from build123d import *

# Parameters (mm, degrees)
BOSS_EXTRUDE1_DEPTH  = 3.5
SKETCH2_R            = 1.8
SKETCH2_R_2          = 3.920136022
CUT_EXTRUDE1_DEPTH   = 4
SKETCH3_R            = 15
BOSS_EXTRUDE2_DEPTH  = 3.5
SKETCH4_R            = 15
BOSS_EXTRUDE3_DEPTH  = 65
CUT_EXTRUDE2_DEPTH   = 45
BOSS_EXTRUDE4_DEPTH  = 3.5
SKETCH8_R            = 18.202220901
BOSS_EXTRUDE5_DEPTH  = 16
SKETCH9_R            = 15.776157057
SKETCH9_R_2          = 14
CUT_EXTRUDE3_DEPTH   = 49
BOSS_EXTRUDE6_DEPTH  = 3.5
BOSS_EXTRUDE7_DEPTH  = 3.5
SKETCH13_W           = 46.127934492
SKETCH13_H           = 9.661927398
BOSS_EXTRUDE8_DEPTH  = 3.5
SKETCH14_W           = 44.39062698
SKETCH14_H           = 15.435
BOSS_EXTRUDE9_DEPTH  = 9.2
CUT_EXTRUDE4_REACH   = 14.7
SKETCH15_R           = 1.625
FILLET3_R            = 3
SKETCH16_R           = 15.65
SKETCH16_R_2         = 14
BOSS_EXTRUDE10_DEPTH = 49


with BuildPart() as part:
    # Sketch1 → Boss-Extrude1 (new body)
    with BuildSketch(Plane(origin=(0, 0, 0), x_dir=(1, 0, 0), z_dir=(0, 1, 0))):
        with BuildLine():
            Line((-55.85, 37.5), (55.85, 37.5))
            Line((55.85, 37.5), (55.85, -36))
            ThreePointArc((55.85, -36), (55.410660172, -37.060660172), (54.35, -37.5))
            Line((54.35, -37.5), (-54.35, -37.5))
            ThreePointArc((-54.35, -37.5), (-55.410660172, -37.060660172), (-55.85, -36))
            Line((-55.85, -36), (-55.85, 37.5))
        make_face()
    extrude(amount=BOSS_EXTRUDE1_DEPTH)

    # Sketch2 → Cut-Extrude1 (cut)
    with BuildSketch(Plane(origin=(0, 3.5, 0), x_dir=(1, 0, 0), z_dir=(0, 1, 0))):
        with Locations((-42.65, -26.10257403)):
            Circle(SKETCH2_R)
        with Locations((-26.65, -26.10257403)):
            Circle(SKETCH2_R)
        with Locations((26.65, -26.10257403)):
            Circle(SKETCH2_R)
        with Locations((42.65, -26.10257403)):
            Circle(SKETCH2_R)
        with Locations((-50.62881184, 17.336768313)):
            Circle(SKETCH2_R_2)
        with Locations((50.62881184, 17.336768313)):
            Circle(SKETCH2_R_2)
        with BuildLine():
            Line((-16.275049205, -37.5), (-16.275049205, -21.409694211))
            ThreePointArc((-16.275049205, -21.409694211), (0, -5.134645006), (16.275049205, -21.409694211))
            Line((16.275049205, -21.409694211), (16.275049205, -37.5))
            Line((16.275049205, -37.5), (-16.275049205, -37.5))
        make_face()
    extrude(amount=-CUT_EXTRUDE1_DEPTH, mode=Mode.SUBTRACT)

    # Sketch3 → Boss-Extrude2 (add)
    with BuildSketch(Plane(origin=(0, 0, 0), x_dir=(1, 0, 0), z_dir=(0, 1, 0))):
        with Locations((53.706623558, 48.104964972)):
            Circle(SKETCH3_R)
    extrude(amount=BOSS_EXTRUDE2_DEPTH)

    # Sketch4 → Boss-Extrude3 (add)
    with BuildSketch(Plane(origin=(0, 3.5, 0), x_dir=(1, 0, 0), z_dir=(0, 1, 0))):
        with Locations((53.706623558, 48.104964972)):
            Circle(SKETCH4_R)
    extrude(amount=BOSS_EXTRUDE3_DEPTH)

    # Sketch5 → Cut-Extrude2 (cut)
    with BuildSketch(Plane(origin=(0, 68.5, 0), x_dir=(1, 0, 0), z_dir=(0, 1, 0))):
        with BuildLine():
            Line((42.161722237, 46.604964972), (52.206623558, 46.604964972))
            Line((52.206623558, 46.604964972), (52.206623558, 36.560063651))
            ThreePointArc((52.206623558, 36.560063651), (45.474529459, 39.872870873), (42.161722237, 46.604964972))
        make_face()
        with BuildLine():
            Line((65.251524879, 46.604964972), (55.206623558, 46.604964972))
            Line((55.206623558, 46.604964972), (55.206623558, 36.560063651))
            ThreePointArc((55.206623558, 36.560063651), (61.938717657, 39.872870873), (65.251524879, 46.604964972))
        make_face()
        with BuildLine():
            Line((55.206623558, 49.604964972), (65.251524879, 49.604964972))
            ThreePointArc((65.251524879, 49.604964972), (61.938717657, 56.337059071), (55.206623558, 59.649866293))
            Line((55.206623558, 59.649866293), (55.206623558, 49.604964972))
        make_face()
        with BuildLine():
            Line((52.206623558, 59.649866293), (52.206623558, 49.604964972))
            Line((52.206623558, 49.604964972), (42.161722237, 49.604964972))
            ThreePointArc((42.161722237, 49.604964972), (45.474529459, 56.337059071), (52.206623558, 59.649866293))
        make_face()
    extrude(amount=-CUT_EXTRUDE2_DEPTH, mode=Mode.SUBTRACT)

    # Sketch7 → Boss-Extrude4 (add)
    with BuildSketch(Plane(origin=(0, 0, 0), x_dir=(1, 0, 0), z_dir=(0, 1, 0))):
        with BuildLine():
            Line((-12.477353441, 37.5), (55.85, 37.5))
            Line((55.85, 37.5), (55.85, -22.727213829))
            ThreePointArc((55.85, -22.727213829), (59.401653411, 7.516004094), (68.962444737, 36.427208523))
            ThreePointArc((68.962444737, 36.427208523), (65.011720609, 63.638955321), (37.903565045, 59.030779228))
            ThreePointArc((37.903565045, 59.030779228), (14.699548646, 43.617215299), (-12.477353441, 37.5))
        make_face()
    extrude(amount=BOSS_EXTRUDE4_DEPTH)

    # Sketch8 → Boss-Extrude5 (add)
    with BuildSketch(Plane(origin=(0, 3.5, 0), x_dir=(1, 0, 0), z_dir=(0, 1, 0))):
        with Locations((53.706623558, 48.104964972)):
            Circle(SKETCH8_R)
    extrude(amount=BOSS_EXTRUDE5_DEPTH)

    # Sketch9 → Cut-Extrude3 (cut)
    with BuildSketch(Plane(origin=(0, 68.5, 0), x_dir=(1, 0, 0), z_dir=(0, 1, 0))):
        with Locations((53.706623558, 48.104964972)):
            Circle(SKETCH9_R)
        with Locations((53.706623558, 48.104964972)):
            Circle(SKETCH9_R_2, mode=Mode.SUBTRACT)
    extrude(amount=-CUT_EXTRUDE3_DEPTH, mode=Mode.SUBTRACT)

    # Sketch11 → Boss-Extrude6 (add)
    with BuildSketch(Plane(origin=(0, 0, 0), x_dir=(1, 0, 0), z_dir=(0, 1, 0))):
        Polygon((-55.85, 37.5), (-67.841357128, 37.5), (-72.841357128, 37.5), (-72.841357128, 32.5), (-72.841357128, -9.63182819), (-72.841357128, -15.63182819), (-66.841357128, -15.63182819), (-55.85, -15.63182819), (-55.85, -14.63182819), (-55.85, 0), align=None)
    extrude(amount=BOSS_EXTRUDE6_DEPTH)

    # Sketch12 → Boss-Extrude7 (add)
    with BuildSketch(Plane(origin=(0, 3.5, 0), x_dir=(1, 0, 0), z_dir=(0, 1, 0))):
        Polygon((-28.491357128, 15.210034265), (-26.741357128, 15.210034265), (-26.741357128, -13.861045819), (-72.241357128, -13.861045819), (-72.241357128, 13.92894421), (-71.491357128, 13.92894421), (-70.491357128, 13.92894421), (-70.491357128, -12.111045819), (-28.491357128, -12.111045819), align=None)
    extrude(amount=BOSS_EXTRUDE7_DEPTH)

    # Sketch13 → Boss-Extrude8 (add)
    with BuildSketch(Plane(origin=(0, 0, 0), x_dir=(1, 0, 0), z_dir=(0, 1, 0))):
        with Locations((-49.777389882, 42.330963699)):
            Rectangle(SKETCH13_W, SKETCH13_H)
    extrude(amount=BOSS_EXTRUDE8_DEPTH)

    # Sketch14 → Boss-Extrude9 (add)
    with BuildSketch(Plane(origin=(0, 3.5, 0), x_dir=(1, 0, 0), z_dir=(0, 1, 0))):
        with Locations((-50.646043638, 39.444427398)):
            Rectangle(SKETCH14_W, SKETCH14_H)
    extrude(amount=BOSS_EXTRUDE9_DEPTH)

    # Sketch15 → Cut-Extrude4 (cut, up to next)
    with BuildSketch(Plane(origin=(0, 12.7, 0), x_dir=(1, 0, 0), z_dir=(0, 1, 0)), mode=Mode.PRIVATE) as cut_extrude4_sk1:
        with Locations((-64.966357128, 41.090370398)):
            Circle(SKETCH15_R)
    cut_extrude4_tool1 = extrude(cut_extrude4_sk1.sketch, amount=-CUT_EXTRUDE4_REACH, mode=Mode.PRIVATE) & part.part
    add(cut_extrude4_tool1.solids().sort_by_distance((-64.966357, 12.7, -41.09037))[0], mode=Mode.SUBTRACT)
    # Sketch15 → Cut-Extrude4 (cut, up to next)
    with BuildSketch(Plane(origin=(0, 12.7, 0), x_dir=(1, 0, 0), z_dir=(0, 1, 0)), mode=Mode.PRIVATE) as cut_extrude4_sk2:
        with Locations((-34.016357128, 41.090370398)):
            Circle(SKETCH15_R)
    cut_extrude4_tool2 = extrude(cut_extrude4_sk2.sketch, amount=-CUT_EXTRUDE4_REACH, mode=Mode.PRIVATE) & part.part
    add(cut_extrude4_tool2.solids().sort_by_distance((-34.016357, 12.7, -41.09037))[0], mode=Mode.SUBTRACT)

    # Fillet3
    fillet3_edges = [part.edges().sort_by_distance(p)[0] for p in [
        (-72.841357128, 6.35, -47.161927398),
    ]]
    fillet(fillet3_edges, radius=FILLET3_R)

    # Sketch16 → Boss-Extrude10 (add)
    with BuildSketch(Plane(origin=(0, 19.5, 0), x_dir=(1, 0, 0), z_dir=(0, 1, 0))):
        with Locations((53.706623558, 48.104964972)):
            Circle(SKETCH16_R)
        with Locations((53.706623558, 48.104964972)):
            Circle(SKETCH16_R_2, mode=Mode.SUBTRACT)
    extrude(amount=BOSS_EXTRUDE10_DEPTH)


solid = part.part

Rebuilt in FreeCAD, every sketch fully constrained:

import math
import FreeCAD as App
import Part
import Sketcher

V = App.Vector


def edges_at(feature, points):
    """Names of the edges that pass closest to the given points."""
    edges = feature.Shape.Edges
    near = lambda p: min(range(len(edges)), key=lambda i: edges[i].distToShape(Part.Vertex(*p))[0])
    return sorted({f"Edge{near(p) + 1}" for p in points})

doc = App.newDocument("Part")
body = doc.addObject("PartDesign::Body", "Body")

# Sketch on XZ plane
sketch1 = doc.addObject("Sketcher::SketchObject", "Sketch")
body.addObject(sketch1)
sketch1.AttachmentSupport = (doc.XZ_Plane, [""])
sketch1.MapMode = "FlatFace"
sketch1.addGeometry([
    Part.LineSegment(V(55.9, -37.5, 0), V(-55.9, -37.5, 0)),  # 0
    Part.LineSegment(V(-55.9, -37.5, 0), V(-55.9, 36, 0)),  # 1
    Part.ArcOfCircle(Part.Circle(V(-54.4, 36, 0), V(0, 0, 1), 1.5), math.radians(90), math.radians(180)),  # 2
    Part.LineSegment(V(-54.4, 37.5, 0), V(54.4, 37.5, 0)),  # 3
    Part.ArcOfCircle(Part.Circle(V(54.4, 36, 0), V(0, 0, 1), 1.5), math.radians(0), math.radians(90)),  # 4
    Part.LineSegment(V(55.9, 36, 0), V(55.9, -37.5, 0)),  # 5
], False)
sketch1.addConstraint([
    Sketcher.Constraint("Coincident", 0, 2, 1, 1),
    Sketcher.Constraint("Tangent", 1, 2, 2, 2),
    Sketcher.Constraint("Tangent", 2, 1, 3, 1),
    Sketcher.Constraint("Tangent", 3, 2, 4, 2),
    Sketcher.Constraint("Tangent", 4, 1, 5, 1),
    Sketcher.Constraint("Coincident", 5, 2, 0, 1),
    Sketcher.Constraint("Horizontal", 0),
    Sketcher.Constraint("Vertical", 1),
    Sketcher.Constraint("Horizontal", 3),
    Sketcher.Constraint("Vertical", 5),
    Sketcher.Constraint("Equal", 2, 4),
    Sketcher.Constraint("Radius", 2, 1.5),
    Sketcher.Constraint("DistanceX", 0, 2, 0, 1, 111.7),
    Sketcher.Constraint("DistanceY", 1, 1, 1, 2, 73.5),
    Sketcher.Constraint("DistanceY", -1, 1, 2, 3, 36.0),
    Sketcher.Constraint("DistanceX", 2, 3, -1, 1, 54.35),
])
pad1 = doc.addObject("PartDesign::Pad", "Pad")
body.addObject(pad1)
pad1.Profile = sketch1
pad1.Length = 3.5
pad1.Reversed = True

# Sketch on XZ plane
sketch2 = doc.addObject("Sketcher::SketchObject", "Sketch001")
body.addObject(sketch2)
sketch2.AttachmentSupport = (doc.XZ_Plane, [""])
sketch2.MapMode = "FlatFace"
sketch2.AttachmentOffset = App.Placement(V(0, 0, -3.5), App.Rotation())
sketch2.addGeometry([
    Part.Circle(V(-42.6, 26.1, 0), V(0, 0, 1), 1.8),  # 0
    Part.Circle(V(-26.6, 26.1, 0), V(0, 0, 1), 1.8),  # 1
    Part.Circle(V(26.6, 26.1, 0), V(0, 0, 1), 1.8),  # 2
    Part.Circle(V(42.6, 26.1, 0), V(0, 0, 1), 1.8),  # 3
    Part.Circle(V(-50.6, -17.3, 0), V(0, 0, 1), 3.9),  # 4
    Part.Circle(V(50.6, -17.3, 0), V(0, 0, 1), 3.9),  # 5
    Part.LineSegment(V(-16.3, 21.4, 0), V(-16.3, 37.5, 0)),  # 6
    Part.LineSegment(V(-16.3, 37.5, 0), V(16.3, 37.5, 0)),  # 7
    Part.LineSegment(V(16.3, 37.5, 0), V(16.3, 21.4, 0)),  # 8
    Part.ArcOfCircle(Part.Circle(V(0, 21.4, 0), V(0, 0, 1), 16.3), math.radians(180), math.radians(360)),  # 9
], False)
sketch2.addConstraint([
    Sketcher.Constraint("Coincident", 6, 2, 7, 1),
    Sketcher.Constraint("Coincident", 7, 2, 8, 1),
    Sketcher.Constraint("Tangent", 8, 2, 9, 2),
    Sketcher.Constraint("Tangent", 9, 1, 6, 1),
    Sketcher.Constraint("Vertical", 6),
    Sketcher.Constraint("Horizontal", 7),
    Sketcher.Constraint("Vertical", 8),
    Sketcher.Constraint("Equal", 0, 1),
    Sketcher.Constraint("Equal", 1, 2),
    Sketcher.Constraint("Equal", 2, 3),
    Sketcher.Constraint("Equal", 4, 5),
    Sketcher.Constraint("Symmetric", 1, 3, 2, 3, -2),
    Sketcher.Constraint("Symmetric", 0, 3, 3, 3, -2),
    Sketcher.Constraint("Symmetric", 4, 3, 5, 3, -2),
    Sketcher.Constraint("PointOnObject", 9, 3, -2),
    Sketcher.Constraint("Horizontal", 0, 3, 1, 3),
    Sketcher.Constraint("Diameter", 0, 3.6),
    Sketcher.Constraint("DistanceX", 0, 3, 1, 3, 16.0),
    Sketcher.Constraint("DistanceY", -1, 1, 6, 2, 37.5),
    Sketcher.Constraint("DistanceX", 1, 3, 2, 3, 53.3),
    Sketcher.Constraint("Radius", 9, 16.275049),
    Sketcher.Constraint("Diameter", 4, 7.840272),
    Sketcher.Constraint("DistanceY", 6, 1, 6, 2, 16.090306),
    Sketcher.Constraint("DistanceX", 4, 3, -1, 1, 50.628812),
    Sketcher.Constraint("DistanceY", 4, 3, -1, 1, 17.336768),
    Sketcher.Constraint("DistanceY", 9, 3, 1, 3, 4.69288),
])
pocket1 = doc.addObject("PartDesign::Pocket", "Pocket")
body.addObject(pocket1)
pocket1.Profile = sketch2
pocket1.Length = 4
pocket1.Reversed = True

# Sketch on XZ plane
sketch3 = doc.addObject("Sketcher::SketchObject", "Sketch002")
body.addObject(sketch3)
sketch3.AttachmentSupport = (doc.XZ_Plane, [""])
sketch3.MapMode = "FlatFace"
sketch3.addGeometry(Part.Circle(V(54, -48, 0), V(0, 0, 1), 15), False)
sketch3.addConstraint([
    Sketcher.Constraint("Diameter", 0, 30.0),
    Sketcher.Constraint("DistanceX", -1, 1, 0, 3, 53.706624),
    Sketcher.Constraint("DistanceY", 0, 3, -1, 1, 48.104965),
])
pad2 = doc.addObject("PartDesign::Pad", "Pad001")
body.addObject(pad2)
pad2.Profile = sketch3
pad2.Length = 3.5
pad2.Reversed = True

# Sketch on XZ plane
sketch4 = doc.addObject("Sketcher::SketchObject", "Sketch003")
body.addObject(sketch4)
sketch4.AttachmentSupport = (doc.XZ_Plane, [""])
sketch4.MapMode = "FlatFace"
sketch4.AttachmentOffset = App.Placement(V(0, 0, -3.5), App.Rotation())
sketch4.addGeometry(Part.Circle(V(54, -48, 0), V(0, 0, 1), 15), False)
sketch4.addConstraint([
    Sketcher.Constraint("Diameter", 0, 30.0),
    Sketcher.Constraint("DistanceX", -1, 1, 0, 3, 53.706624),
    Sketcher.Constraint("DistanceY", 0, 3, -1, 1, 48.104965),
])
pad3 = doc.addObject("PartDesign::Pad", "Pad002")
body.addObject(pad3)
pad3.Profile = sketch4
pad3.Length = 65
pad3.Reversed = True

# Sketch on XZ plane
sketch5 = doc.addObject("Sketcher::SketchObject", "Sketch004")
body.addObject(sketch5)
sketch5.AttachmentSupport = (doc.XZ_Plane, [""])
sketch5.MapMode = "FlatFace"
sketch5.AttachmentOffset = App.Placement(V(0, 0, -68.5), App.Rotation())
sketch5.addGeometry([
    Part.LineSegment(V(52, -47, 0), V(42, -47, 0)),  # 0
    Part.ArcOfCircle(Part.Circle(V(54, -48, 0), V(0, 0, 1), 12), math.radians(97), math.radians(173)),  # 1
    Part.LineSegment(V(52, -37, 0), V(52, -47, 0)),  # 2
    Part.LineSegment(V(65, -47, 0), V(55, -47, 0)),  # 3
    Part.LineSegment(V(55, -47, 0), V(55, -37, 0)),  # 4
    Part.ArcOfCircle(Part.Circle(V(54, -48, 0), V(0, 0, 1), 12), math.radians(7), math.radians(83)),  # 5
    Part.LineSegment(V(55, -50, 0), V(65, -50, 0)),  # 6
    Part.ArcOfCircle(Part.Circle(V(54, -48, 0), V(0, 0, 1), 12), math.radians(-83), math.radians(-7)),  # 7
    Part.LineSegment(V(55, -60, 0), V(55, -50, 0)),  # 8
    Part.LineSegment(V(52, -50, 0), V(52, -60, 0)),  # 9
    Part.ArcOfCircle(Part.Circle(V(54, -48, 0), V(0, 0, 1), 12), math.radians(-173), math.radians(-97)),  # 10
    Part.LineSegment(V(42, -50, 0), V(52, -50, 0)),  # 11
], False)
sketch5.addConstraint([
    Sketcher.Constraint("Coincident", 0, 2, 1, 2),
    Sketcher.Constraint("Coincident", 1, 1, 2, 1),
    Sketcher.Constraint("Coincident", 2, 2, 0, 1),
    Sketcher.Constraint("Coincident", 3, 2, 4, 1),
    Sketcher.Constraint("Coincident", 4, 2, 5, 2),
    Sketcher.Constraint("Coincident", 5, 1, 3, 1),
    Sketcher.Constraint("Coincident", 6, 2, 7, 2),
    Sketcher.Constraint("Coincident", 7, 1, 8, 1),
    Sketcher.Constraint("Coincident", 8, 2, 6, 1),
    Sketcher.Constraint("Coincident", 9, 2, 10, 2),
    Sketcher.Constraint("Coincident", 10, 1, 11, 1),
    Sketcher.Constraint("Coincident", 11, 2, 9, 1),
    Sketcher.Constraint("Horizontal", 0),
    Sketcher.Constraint("Vertical", 2),
    Sketcher.Constraint("Horizontal", 3),
    Sketcher.Constraint("Vertical", 4),
    Sketcher.Constraint("Horizontal", 6),
    Sketcher.Constraint("Vertical", 8),
    Sketcher.Constraint("Vertical", 9),
    Sketcher.Constraint("Horizontal", 11),
    Sketcher.Constraint("Coincident", 5, 3, 1, 3),
    Sketcher.Constraint("Coincident", 7, 3, 1, 3),
    Sketcher.Constraint("Coincident", 10, 3, 1, 3),
    Sketcher.Constraint("Equal", 1, 5),
    Sketcher.Constraint("Equal", 5, 7),
    Sketcher.Constraint("Equal", 7, 10),
    Sketcher.Constraint("Horizontal", 2, 2, 3, 2),
    Sketcher.Constraint("Horizontal", 1, 1, 4, 2),
    Sketcher.Constraint("Horizontal", 7, 1, 9, 2),
    Sketcher.Constraint("Horizontal", 8, 2, 10, 1),
    Sketcher.Constraint("Vertical", 5, 1, 6, 2),
    Sketcher.Constraint("Vertical", 4, 2, 7, 1),
    Sketcher.Constraint("Equal", 11, 2),
    Sketcher.Constraint("DistanceX", 2, 2, 3, 2, 3.0),
    Sketcher.Constraint("Radius", 1, 11.641939),
    Sketcher.Constraint("DistanceX", -1, 1, 1, 3, 53.706624),
    Sketcher.Constraint("DistanceY", 1, 3, -1, 1, 48.104965),
])
pocket2 = doc.addObject("PartDesign::Pocket", "Pocket001")
body.addObject(pocket2)
pocket2.Profile = sketch5
pocket2.Length = 45
pocket2.Reversed = True

# Sketch on XZ plane
sketch6 = doc.addObject("Sketcher::SketchObject", "Sketch005")
body.addObject(sketch6)
sketch6.AttachmentSupport = (doc.XZ_Plane, [""])
sketch6.MapMode = "FlatFace"
sketch6.addGeometry([
    Part.LineSegment(V(-12, -38, 0), V(56, -38, 0)),  # 0
    Part.LineSegment(V(56, -38, 0), V(56, 23, 0)),  # 1
    Part.ArcOfCircle(Part.Circle(V(206, 25, 0), V(0, 0, 1), 151), math.radians(-179), math.radians(-156)),  # 2
    Part.ArcOfCircle(Part.Circle(V(54, -48, 0), V(0, 0, 1), 19), math.radians(-145), math.radians(37)),  # 3
    Part.ArcOfCircle(Part.Circle(V(-15, -114, 0), V(0, 0, 1), 77), math.radians(46), math.radians(88)),  # 4
], False)
sketch6.addConstraint([
    Sketcher.Constraint("Coincident", 0, 2, 1, 1),
    Sketcher.Constraint("Coincident", 1, 2, 2, 1),
    Sketcher.Constraint("Coincident", 2, 2, 3, 2),
    Sketcher.Constraint("Coincident", 3, 1, 4, 1),
    Sketcher.Constraint("Coincident", 4, 2, 0, 1),
    Sketcher.Constraint("Horizontal", 0),
    Sketcher.Constraint("Vertical", 1),
    Sketcher.Constraint("DistanceY", 0, 2, -1, 1, 37.5),
    Sketcher.Constraint("DistanceX", -1, 1, 0, 2, 55.85),
    Sketcher.Constraint("Radius", 2, 150.652607),
    Sketcher.Constraint("Radius", 3, 19.212238),
    Sketcher.Constraint("Radius", 4, 76.758437),
    Sketcher.Constraint("DistanceX", 3, 3, 2, 3, 152.777501),
    Sketcher.Constraint("DistanceY", 4, 3, 3, 1, 55.169499),
    Sketcher.Constraint("DistanceX", 4, 2, 2, 2, 81.439798),
    Sketcher.Constraint("DistanceX", 0, 1, 0, 2, 68.327353),
    Sketcher.Constraint("DistanceY", 1, 1, 1, 2, 60.227214),
    Sketcher.Constraint("DistanceY", -1, 1, 2, 3, 25.086981),
])
pad4 = doc.addObject("PartDesign::Pad", "Pad003")
body.addObject(pad4)
pad4.Profile = sketch6
pad4.Length = 3.5
pad4.Reversed = True

# Sketch on XZ plane
sketch7 = doc.addObject("Sketcher::SketchObject", "Sketch006")
body.addObject(sketch7)
sketch7.AttachmentSupport = (doc.XZ_Plane, [""])
sketch7.MapMode = "FlatFace"
sketch7.AttachmentOffset = App.Placement(V(0, 0, -3.5), App.Rotation())
sketch7.addGeometry(Part.Circle(V(54, -48, 0), V(0, 0, 1), 18), False)
sketch7.addConstraint([
    Sketcher.Constraint("Diameter", 0, 36.404442),
    Sketcher.Constraint("DistanceX", -1, 1, 0, 3, 53.706624),
    Sketcher.Constraint("DistanceY", 0, 3, -1, 1, 48.104965),
])
pad5 = doc.addObject("PartDesign::Pad", "Pad004")
body.addObject(pad5)
pad5.Profile = sketch7
pad5.Length = 16
pad5.Reversed = True

# Sketch on XZ plane
sketch8 = doc.addObject("Sketcher::SketchObject", "Sketch007")
body.addObject(sketch8)
sketch8.AttachmentSupport = (doc.XZ_Plane, [""])
sketch8.MapMode = "FlatFace"
sketch8.AttachmentOffset = App.Placement(V(0, 0, -68.5), App.Rotation())
sketch8.addGeometry([
    Part.Circle(V(54, -48, 0), V(0, 0, 1), 16),
    Part.Circle(V(54, -48, 0), V(0, 0, 1), 14),
], False)
sketch8.addConstraint([
    Sketcher.Constraint("Coincident", 1, 3, 0, 3),
    Sketcher.Constraint("Diameter", 1, 28.0),
    Sketcher.Constraint("Diameter", 0, 31.552314),
    Sketcher.Constraint("DistanceX", -1, 1, 0, 3, 53.706624),
    Sketcher.Constraint("DistanceY", 0, 3, -1, 1, 48.104965),
])
pocket3 = doc.addObject("PartDesign::Pocket", "Pocket002")
body.addObject(pocket3)
pocket3.Profile = sketch8
pocket3.Length = 49
pocket3.Reversed = True

# Sketch on XZ plane
sketch9 = doc.addObject("Sketcher::SketchObject", "Sketch008")
body.addObject(sketch9)
sketch9.AttachmentSupport = (doc.XZ_Plane, [""])
sketch9.MapMode = "FlatFace"
sketch9.addGeometry([
    Part.LineSegment(V(-56, -38, 0), V(-73, -38, 0)),
    Part.LineSegment(V(-73, -38, 0), V(-73, 16, 0)),
    Part.LineSegment(V(-73, 16, 0), V(-56, 16, 0)),
    Part.LineSegment(V(-56, 16, 0), V(-56, -38, 0)),
], False)
sketch9.addConstraint([
    Sketcher.Constraint("Coincident", 0, 2, 1, 1),
    Sketcher.Constraint("Coincident", 1, 2, 2, 1),
    Sketcher.Constraint("Coincident", 2, 2, 3, 1),
    Sketcher.Constraint("Coincident", 3, 2, 0, 1),
    Sketcher.Constraint("Horizontal", 0),
    Sketcher.Constraint("Vertical", 1),
    Sketcher.Constraint("Horizontal", 2),
    Sketcher.Constraint("Vertical", 3),
    Sketcher.Constraint("DistanceY", 0, 2, -1, 1, 37.5),
    Sketcher.Constraint("DistanceX", 2, 2, -1, 1, 55.85),
    Sketcher.Constraint("DistanceY", 1, 1, 1, 2, 53.131828),
    Sketcher.Constraint("DistanceX", 0, 2, 0, 1, 16.991357),
])
pad6 = doc.addObject("PartDesign::Pad", "Pad005")
body.addObject(pad6)
pad6.Profile = sketch9
pad6.Length = 3.5
pad6.Reversed = True

# Sketch on XZ plane
sketch10 = doc.addObject("Sketcher::SketchObject", "Sketch009")
body.addObject(sketch10)
sketch10.AttachmentSupport = (doc.XZ_Plane, [""])
sketch10.MapMode = "FlatFace"
sketch10.AttachmentOffset = App.Placement(V(0, 0, -3.5), App.Rotation())
sketch10.addGeometry([
    Part.LineSegment(V(-26.7, -15.2, 0), V(-28.5, -15.2, 0)),  # 0
    Part.LineSegment(V(-28.5, -15.2, 0), V(-28.5, 12.1, 0)),  # 1
    Part.LineSegment(V(-28.5, 12.1, 0), V(-70.5, 12.1, 0)),  # 2
    Part.LineSegment(V(-70.5, 12.1, 0), V(-70.5, -13.9, 0)),  # 3
    Part.LineSegment(V(-70.5, -13.9, 0), V(-72.2, -13.9, 0)),  # 4
    Part.LineSegment(V(-72.2, -13.9, 0), V(-72.2, 13.9, 0)),  # 5
    Part.LineSegment(V(-72.2, 13.9, 0), V(-26.7, 13.9, 0)),  # 6
    Part.LineSegment(V(-26.7, 13.9, 0), V(-26.7, -15.2, 0)),  # 7
], False)
sketch10.addConstraint([
    Sketcher.Constraint("Coincident", 0, 2, 1, 1),
    Sketcher.Constraint("Coincident", 1, 2, 2, 1),
    Sketcher.Constraint("Coincident", 2, 2, 3, 1),
    Sketcher.Constraint("Coincident", 3, 2, 4, 1),
    Sketcher.Constraint("Coincident", 4, 2, 5, 1),
    Sketcher.Constraint("Coincident", 5, 2, 6, 1),
    Sketcher.Constraint("Coincident", 6, 2, 7, 1),
    Sketcher.Constraint("Coincident", 7, 2, 0, 1),
    Sketcher.Constraint("Horizontal", 0),
    Sketcher.Constraint("Vertical", 1),
    Sketcher.Constraint("Horizontal", 2),
    Sketcher.Constraint("Vertical", 3),
    Sketcher.Constraint("Horizontal", 4),
    Sketcher.Constraint("Vertical", 5),
    Sketcher.Constraint("Horizontal", 6),
    Sketcher.Constraint("Vertical", 7),
    Sketcher.Constraint("Equal", 0, 4),
    Sketcher.Constraint("DistanceX", 2, 2, 2, 1, 42.0),
    Sketcher.Constraint("DistanceX", 6, 1, 6, 2, 45.5),
    Sketcher.Constraint("DistanceY", 2, 2, 5, 2, 1.75),
    Sketcher.Constraint("DistanceY", 1, 1, 1, 2, 27.32108),
    Sketcher.Constraint("DistanceY", 3, 2, 3, 1, 26.03999),
    Sketcher.Constraint("DistanceX", 0, 2, -1, 1, 28.491357),
    Sketcher.Constraint("DistanceY", 0, 2, -1, 1, 15.210034),
])
pad7 = doc.addObject("PartDesign::Pad", "Pad006")
body.addObject(pad7)
pad7.Profile = sketch10
pad7.Length = 3.5
pad7.Reversed = True

# Sketch on XZ plane
sketch11 = doc.addObject("Sketcher::SketchObject", "Sketch010")
body.addObject(sketch11)
sketch11.AttachmentSupport = (doc.XZ_Plane, [""])
sketch11.MapMode = "FlatFace"
sketch11.addGeometry([
    Part.LineSegment(V(-73, -47, 0), V(-73, -38, 0)),
    Part.LineSegment(V(-73, -38, 0), V(-27, -38, 0)),
    Part.LineSegment(V(-27, -38, 0), V(-27, -47, 0)),
    Part.LineSegment(V(-27, -47, 0), V(-73, -47, 0)),
], False)
sketch11.addConstraint([
    Sketcher.Constraint("Coincident", 0, 2, 1, 1),
    Sketcher.Constraint("Coincident", 1, 2, 2, 1),
    Sketcher.Constraint("Coincident", 2, 2, 3, 1),
    Sketcher.Constraint("Coincident", 3, 2, 0, 1),
    Sketcher.Constraint("Vertical", 0),
    Sketcher.Constraint("Horizontal", 1),
    Sketcher.Constraint("Vertical", 2),
    Sketcher.Constraint("Horizontal", 3),
    Sketcher.Constraint("DistanceY", 0, 2, -1, 1, 37.5),
    Sketcher.Constraint("DistanceX", 1, 1, 1, 2, 46.127934),
    Sketcher.Constraint("DistanceY", 0, 1, 0, 2, 9.661927),
    Sketcher.Constraint("DistanceX", 0, 2, -1, 1, 72.841357),
])
pad8 = doc.addObject("PartDesign::Pad", "Pad007")
body.addObject(pad8)
pad8.Profile = sketch11
pad8.Length = 3.5
pad8.Reversed = True

# Sketch on XZ plane
sketch12 = doc.addObject("Sketcher::SketchObject", "Sketch011")
body.addObject(sketch12)
sketch12.AttachmentSupport = (doc.XZ_Plane, [""])
sketch12.MapMode = "FlatFace"
sketch12.AttachmentOffset = App.Placement(V(0, 0, -3.5), App.Rotation())
sketch12.addGeometry([
    Part.LineSegment(V(-73, -47, 0), V(-73, -32, 0)),
    Part.LineSegment(V(-73, -32, 0), V(-28, -32, 0)),
    Part.LineSegment(V(-28, -32, 0), V(-28, -47, 0)),
    Part.LineSegment(V(-28, -47, 0), V(-73, -47, 0)),
], False)
sketch12.addConstraint([
    Sketcher.Constraint("Coincident", 0, 2, 1, 1),
    Sketcher.Constraint("Coincident", 1, 2, 2, 1),
    Sketcher.Constraint("Coincident", 2, 2, 3, 1),
    Sketcher.Constraint("Coincident", 3, 2, 0, 1),
    Sketcher.Constraint("Vertical", 0),
    Sketcher.Constraint("Horizontal", 1),
    Sketcher.Constraint("Vertical", 2),
    Sketcher.Constraint("Horizontal", 3),
    Sketcher.Constraint("DistanceY", 0, 1, 0, 2, 15.435),
    Sketcher.Constraint("DistanceX", 1, 1, 1, 2, 44.390627),
    Sketcher.Constraint("DistanceX", 1, 2, -1, 1, 28.45073),
    Sketcher.Constraint("DistanceY", 0, 2, -1, 1, 31.726927),
])
pad9 = doc.addObject("PartDesign::Pad", "Pad008")
body.addObject(pad9)
pad9.Profile = sketch12
pad9.Length = 9.2
pad9.Reversed = True

# Sketch on XZ plane
sketch13 = doc.addObject("Sketcher::SketchObject", "Sketch012")
body.addObject(sketch13)
sketch13.AttachmentSupport = (doc.XZ_Plane, [""])
sketch13.MapMode = "FlatFace"
sketch13.AttachmentOffset = App.Placement(V(0, 0, -12.7), App.Rotation())
sketch13.addGeometry(Part.Circle(V(-65, -41.1, 0), V(0, 0, 1), 1.6), False)
sketch13.addConstraint([
    Sketcher.Constraint("Diameter", 0, 3.25),
    Sketcher.Constraint("DistanceY", 0, 3, -1, 1, 41.09037),
    Sketcher.Constraint("DistanceX", 0, 3, -1, 1, 64.966357),
])
pocket4 = doc.addObject("PartDesign::Pocket", "Pocket003")
body.addObject(pocket4)
pocket4.Profile = sketch13
pocket4.Type = "UpToFirst"
pocket4.Reversed = True

# Sketch on XZ plane
sketch14 = doc.addObject("Sketcher::SketchObject", "Sketch013")
body.addObject(sketch14)
sketch14.AttachmentSupport = (doc.XZ_Plane, [""])
sketch14.MapMode = "FlatFace"
sketch14.AttachmentOffset = App.Placement(V(0, 0, -12.7), App.Rotation())
sketch14.addGeometry(Part.Circle(V(-34, -41.1, 0), V(0, 0, 1), 1.6), False)
sketch14.addConstraint([
    Sketcher.Constraint("Diameter", 0, 3.25),
    Sketcher.Constraint("DistanceY", 0, 3, -1, 1, 41.09037),
    Sketcher.Constraint("DistanceX", 0, 3, -1, 1, 34.016357),
])
pocket5 = doc.addObject("PartDesign::Pocket", "Pocket004")
body.addObject(pocket5)
pocket5.Profile = sketch14
pocket5.Type = "UpToFirst"
pocket5.Reversed = True
doc.recompute()

fillet = doc.addObject("PartDesign::Fillet", "Fillet")
body.addObject(fillet)
fillet.Base = (pocket5, edges_at(pocket5, [(-72.841, 6.35, -47.162)]))
fillet.Radius = 3

# Sketch on XZ plane
sketch15 = doc.addObject("Sketcher::SketchObject", "Sketch014")
body.addObject(sketch15)
sketch15.AttachmentSupport = (doc.XZ_Plane, [""])
sketch15.MapMode = "FlatFace"
sketch15.AttachmentOffset = App.Placement(V(0, 0, -19.5), App.Rotation())
sketch15.addGeometry([
    Part.Circle(V(54, -48, 0), V(0, 0, 1), 16),
    Part.Circle(V(54, -48, 0), V(0, 0, 1), 14),
], False)
sketch15.addConstraint([
    Sketcher.Constraint("Coincident", 1, 3, 0, 3),
    Sketcher.Constraint("Diameter", 1, 28.0),
    Sketcher.Constraint("Diameter", 0, 31.3),
    Sketcher.Constraint("DistanceX", -1, 1, 0, 3, 53.706624),
    Sketcher.Constraint("DistanceY", 0, 3, -1, 1, 48.104965),
])
pad10 = doc.addObject("PartDesign::Pad", "Pad009")
body.addObject(pad10)
pad10.Profile = sketch15
pad10.Length = 49
pad10.Reversed = True

doc.recompute()
